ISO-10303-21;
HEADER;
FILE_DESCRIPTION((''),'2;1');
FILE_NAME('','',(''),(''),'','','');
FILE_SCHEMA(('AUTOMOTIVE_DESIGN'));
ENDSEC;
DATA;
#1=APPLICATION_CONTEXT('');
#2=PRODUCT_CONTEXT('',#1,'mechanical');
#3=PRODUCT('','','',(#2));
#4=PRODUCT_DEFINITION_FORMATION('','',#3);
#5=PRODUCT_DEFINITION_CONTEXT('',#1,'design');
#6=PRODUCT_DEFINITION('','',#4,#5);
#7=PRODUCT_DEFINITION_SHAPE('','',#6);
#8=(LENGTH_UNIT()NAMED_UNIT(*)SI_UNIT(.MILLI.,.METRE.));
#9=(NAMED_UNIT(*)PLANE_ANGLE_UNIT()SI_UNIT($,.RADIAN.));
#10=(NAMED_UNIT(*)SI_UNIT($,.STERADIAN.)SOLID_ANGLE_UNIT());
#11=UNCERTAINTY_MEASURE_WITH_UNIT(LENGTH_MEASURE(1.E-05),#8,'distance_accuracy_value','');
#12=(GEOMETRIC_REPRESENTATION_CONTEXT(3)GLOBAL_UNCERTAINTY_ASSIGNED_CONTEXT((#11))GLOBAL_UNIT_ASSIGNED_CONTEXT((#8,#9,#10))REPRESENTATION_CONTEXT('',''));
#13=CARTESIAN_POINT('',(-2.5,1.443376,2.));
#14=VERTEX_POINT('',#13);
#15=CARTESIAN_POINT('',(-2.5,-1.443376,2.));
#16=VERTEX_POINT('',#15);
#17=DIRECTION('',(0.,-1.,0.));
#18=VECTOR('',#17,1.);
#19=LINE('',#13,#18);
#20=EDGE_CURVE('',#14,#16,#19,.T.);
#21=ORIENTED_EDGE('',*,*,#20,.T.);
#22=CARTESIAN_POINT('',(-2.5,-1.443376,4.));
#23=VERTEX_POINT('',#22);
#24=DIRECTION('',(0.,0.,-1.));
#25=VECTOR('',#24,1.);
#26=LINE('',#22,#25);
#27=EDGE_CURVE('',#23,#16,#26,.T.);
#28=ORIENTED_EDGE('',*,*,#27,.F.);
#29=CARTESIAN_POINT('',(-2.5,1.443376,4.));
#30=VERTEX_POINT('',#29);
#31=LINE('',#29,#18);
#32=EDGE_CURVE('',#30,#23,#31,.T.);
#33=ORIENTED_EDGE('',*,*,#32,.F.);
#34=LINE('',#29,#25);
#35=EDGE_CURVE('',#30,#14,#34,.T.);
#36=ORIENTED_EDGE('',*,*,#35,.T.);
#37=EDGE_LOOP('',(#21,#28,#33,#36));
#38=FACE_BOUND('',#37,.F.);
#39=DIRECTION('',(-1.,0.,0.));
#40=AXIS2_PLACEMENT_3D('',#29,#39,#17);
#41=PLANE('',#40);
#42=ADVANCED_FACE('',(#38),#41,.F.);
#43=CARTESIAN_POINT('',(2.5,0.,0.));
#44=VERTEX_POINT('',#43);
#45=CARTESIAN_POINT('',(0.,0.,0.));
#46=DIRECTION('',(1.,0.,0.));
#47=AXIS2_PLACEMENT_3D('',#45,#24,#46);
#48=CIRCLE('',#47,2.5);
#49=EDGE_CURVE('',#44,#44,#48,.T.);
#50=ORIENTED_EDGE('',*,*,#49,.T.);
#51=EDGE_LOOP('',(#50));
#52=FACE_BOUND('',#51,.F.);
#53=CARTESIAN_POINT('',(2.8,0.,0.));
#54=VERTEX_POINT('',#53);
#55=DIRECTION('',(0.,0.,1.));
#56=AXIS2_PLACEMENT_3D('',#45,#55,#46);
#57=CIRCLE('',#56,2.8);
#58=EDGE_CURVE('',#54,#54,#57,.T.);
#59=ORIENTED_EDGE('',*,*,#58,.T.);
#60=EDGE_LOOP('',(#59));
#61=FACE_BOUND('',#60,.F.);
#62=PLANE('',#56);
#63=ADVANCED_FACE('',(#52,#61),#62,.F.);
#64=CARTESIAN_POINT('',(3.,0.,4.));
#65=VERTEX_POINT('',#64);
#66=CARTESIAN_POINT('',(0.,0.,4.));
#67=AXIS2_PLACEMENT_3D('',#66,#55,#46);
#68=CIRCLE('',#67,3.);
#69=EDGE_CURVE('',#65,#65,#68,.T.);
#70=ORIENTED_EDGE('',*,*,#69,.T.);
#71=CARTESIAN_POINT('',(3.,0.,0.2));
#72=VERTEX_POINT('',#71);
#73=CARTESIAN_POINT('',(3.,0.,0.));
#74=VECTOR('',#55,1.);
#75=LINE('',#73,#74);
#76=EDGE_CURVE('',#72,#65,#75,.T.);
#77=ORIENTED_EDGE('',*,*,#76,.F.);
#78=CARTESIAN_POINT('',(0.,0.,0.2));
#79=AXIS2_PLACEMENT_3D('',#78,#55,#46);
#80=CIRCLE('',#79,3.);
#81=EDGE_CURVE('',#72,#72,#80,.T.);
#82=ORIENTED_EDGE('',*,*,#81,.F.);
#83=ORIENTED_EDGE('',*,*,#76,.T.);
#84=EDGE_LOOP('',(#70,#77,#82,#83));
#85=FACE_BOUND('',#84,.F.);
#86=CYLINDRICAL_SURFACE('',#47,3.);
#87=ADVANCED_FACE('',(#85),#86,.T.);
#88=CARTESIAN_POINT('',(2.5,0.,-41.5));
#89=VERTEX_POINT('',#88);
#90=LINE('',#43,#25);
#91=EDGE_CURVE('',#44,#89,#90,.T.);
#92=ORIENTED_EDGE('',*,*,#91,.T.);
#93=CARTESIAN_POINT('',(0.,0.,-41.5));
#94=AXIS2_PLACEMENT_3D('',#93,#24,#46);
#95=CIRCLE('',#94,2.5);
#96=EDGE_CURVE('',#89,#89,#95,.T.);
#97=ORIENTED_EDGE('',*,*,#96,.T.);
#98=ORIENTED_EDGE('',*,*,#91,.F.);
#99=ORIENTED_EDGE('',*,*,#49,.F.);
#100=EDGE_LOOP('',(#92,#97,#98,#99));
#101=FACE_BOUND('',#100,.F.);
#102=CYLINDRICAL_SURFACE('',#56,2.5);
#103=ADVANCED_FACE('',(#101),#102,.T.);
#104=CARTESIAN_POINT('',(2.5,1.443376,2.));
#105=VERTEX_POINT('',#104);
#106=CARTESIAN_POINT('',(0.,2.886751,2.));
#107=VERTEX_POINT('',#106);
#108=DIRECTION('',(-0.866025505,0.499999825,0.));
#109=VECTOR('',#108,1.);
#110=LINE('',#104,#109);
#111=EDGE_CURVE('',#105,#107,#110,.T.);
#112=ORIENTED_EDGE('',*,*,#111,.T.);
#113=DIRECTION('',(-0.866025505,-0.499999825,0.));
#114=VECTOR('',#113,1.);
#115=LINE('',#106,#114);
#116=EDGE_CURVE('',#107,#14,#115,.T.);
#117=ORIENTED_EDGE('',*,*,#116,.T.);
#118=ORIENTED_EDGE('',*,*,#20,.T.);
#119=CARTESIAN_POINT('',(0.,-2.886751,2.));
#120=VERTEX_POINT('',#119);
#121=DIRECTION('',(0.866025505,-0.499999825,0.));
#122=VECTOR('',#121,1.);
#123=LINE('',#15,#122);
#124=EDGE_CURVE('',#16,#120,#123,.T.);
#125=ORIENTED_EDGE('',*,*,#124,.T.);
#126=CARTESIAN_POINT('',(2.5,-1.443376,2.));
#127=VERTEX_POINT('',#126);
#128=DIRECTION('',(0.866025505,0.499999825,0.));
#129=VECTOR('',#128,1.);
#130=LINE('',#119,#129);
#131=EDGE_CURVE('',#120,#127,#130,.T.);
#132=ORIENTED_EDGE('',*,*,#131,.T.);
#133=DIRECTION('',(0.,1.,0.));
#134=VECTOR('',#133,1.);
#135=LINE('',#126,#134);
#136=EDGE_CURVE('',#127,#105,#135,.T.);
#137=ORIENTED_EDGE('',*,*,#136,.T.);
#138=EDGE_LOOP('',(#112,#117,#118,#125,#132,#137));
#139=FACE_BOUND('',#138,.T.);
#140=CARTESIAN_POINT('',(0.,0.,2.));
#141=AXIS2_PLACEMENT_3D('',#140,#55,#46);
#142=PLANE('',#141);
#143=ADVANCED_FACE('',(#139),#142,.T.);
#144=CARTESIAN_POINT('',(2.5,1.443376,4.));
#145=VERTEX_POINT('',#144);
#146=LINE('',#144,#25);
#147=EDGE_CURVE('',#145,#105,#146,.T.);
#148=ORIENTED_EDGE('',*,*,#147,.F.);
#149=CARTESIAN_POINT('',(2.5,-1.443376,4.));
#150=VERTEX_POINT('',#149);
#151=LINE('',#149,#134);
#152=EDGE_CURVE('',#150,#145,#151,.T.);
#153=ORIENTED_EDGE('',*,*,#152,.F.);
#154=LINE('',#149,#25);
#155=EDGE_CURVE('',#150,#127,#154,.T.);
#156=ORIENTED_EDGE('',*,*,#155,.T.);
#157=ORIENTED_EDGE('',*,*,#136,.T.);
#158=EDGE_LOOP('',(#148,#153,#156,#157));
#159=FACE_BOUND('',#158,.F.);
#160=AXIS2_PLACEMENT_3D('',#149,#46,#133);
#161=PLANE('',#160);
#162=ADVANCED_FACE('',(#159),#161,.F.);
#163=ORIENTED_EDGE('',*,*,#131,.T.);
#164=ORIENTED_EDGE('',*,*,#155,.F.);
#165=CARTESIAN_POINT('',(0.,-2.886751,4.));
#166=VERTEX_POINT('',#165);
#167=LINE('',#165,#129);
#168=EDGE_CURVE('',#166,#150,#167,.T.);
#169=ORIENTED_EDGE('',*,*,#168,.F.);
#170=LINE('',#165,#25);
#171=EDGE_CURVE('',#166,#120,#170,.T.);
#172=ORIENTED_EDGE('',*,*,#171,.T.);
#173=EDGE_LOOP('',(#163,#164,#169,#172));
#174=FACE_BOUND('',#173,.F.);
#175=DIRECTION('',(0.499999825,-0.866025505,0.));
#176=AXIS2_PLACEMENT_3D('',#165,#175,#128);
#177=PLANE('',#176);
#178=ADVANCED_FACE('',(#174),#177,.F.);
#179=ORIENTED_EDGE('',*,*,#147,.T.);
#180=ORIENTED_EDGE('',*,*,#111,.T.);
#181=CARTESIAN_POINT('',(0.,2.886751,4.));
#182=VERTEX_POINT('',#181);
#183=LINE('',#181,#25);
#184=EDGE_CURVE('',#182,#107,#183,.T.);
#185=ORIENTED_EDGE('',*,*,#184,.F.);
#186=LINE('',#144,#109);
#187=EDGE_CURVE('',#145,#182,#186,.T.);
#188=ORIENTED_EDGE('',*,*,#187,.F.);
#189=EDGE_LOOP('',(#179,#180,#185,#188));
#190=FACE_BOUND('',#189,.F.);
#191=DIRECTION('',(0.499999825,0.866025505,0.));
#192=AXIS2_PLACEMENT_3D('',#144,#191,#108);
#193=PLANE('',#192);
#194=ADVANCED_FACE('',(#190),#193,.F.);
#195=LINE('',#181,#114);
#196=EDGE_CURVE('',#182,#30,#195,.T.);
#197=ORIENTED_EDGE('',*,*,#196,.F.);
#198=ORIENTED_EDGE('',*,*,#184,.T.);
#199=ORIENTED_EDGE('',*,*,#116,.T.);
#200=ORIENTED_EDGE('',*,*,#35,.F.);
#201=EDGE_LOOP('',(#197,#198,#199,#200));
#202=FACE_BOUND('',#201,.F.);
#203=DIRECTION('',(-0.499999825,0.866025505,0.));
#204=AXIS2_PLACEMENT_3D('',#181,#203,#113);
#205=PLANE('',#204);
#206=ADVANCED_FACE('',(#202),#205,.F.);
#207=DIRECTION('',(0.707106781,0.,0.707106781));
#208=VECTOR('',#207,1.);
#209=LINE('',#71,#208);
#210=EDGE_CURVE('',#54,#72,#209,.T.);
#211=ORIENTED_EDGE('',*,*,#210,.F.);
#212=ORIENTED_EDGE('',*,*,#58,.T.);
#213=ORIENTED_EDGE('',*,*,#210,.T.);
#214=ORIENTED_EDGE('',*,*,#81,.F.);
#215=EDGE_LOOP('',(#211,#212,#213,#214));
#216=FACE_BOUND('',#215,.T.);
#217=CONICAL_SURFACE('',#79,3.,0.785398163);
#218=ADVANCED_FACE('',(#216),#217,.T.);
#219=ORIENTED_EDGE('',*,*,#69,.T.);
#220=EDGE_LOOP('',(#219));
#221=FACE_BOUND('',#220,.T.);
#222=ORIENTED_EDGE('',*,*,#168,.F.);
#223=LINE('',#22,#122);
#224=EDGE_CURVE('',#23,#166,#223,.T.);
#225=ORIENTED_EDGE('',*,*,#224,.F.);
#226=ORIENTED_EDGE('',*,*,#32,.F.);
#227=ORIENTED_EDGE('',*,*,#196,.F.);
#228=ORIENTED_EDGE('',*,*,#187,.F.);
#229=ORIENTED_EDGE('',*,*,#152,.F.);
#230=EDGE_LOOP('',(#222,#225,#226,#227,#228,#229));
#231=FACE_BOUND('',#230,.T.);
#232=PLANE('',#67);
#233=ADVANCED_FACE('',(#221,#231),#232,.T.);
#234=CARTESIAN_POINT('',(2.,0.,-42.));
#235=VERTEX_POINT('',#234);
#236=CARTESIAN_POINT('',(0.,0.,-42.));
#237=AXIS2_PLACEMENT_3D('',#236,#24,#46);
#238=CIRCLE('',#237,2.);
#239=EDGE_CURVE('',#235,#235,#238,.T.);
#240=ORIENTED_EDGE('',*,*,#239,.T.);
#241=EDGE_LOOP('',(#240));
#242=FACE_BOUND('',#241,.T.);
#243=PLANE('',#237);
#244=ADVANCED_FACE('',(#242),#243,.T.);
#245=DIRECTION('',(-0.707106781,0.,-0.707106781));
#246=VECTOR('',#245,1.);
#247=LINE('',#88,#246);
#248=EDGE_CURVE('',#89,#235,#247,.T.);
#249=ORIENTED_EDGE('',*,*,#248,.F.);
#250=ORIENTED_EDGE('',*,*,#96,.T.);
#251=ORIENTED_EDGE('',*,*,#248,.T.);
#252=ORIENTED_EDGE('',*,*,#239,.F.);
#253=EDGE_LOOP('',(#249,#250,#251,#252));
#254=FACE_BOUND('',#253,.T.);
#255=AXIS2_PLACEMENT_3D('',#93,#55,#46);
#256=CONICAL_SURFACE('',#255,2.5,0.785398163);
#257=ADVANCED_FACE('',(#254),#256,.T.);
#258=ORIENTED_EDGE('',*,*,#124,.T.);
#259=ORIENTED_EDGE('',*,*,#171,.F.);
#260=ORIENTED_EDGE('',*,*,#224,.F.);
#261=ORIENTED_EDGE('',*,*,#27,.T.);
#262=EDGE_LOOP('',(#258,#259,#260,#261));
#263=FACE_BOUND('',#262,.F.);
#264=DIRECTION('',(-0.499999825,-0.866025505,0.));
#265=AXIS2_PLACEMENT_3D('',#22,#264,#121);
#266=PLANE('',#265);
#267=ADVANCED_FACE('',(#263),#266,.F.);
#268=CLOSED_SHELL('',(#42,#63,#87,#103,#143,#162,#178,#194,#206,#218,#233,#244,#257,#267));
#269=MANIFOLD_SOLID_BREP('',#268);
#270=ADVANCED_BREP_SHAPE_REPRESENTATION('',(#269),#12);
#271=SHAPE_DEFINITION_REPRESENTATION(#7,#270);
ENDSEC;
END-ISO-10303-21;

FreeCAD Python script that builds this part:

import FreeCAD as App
import Part
import Sketcher
Q = App.Units.Quantity


def edges_at(feature, points):
    """Names of the edges that pass closest to the given points."""
    edges = feature.Shape.Edges
    near = lambda p: min(range(len(edges)), key=lambda i: edges[i].distToShape(Part.Vertex(*p))[0])
    return sorted({f"Edge{near(p) + 1}" for p in points})

doc = App.newDocument("Part")
body = doc.addObject("PartDesign::Body", "Body")

# Sketch on XY plane
sketch1 = doc.addObject("Sketcher::SketchObject", "Sketch")
body.addObject(sketch1)
sketch1.AttachmentSupport = (doc.XY_Plane, [""])
sketch1.MapMode = "FlatFace"
sketch1.addGeometry(Part.Circle(App.Vector(0, 0, 0), App.Vector(0, 0, 1), 3), False)
sketch1.addConstraint([
    Sketcher.Constraint("Coincident", 0, 3, -1, 1),
    Sketcher.Constraint("Diameter", 0, Q("6 mm")),
])
pad1 = doc.addObject("PartDesign::Pad", "Pad")
body.addObject(pad1)
pad1.Profile = sketch1
pad1.Length = 4

# Sketch on XY plane
sketch2 = doc.addObject("Sketcher::SketchObject", "Sketch001")
body.addObject(sketch2)
sketch2.AttachmentSupport = (doc.XY_Plane, [""])
sketch2.MapMode = "FlatFace"
sketch2.AttachmentOffset = App.Placement(App.Vector(0, 0, 4), App.Rotation())
sketch2.addGeometry([
    Part.LineSegment(App.Vector(2.5, -1.4, 0), App.Vector(2.5, 1.4, 0)),  # 0
    Part.LineSegment(App.Vector(2.5, 1.4, 0), App.Vector(0, 2.9, 0)),  # 1
    Part.LineSegment(App.Vector(0, 2.9, 0), App.Vector(-2.5, 1.4, 0)),  # 2
    Part.LineSegment(App.Vector(-2.5, 1.4, 0), App.Vector(-2.5, -1.4, 0)),  # 3
    Part.LineSegment(App.Vector(-2.5, -1.4, 0), App.Vector(0, -2.9, 0)),  # 4
    Part.LineSegment(App.Vector(0, -2.9, 0), App.Vector(2.5, -1.4, 0)),  # 5
], False)
sketch2.addConstraint([
    Sketcher.Constraint("Coincident", 0, 2, 1, 1),
    Sketcher.Constraint("Coincident", 1, 2, 2, 1),
    Sketcher.Constraint("Coincident", 2, 2, 3, 1),
    Sketcher.Constraint("Coincident", 3, 2, 4, 1),
    Sketcher.Constraint("Coincident", 4, 2, 5, 1),
    Sketcher.Constraint("Coincident", 5, 2, 0, 1),
    Sketcher.Constraint("Vertical", 0),
    Sketcher.Constraint("Vertical", 3),
    Sketcher.Constraint("Symmetric", 0, 2, 3, 2, -1, 1),
    Sketcher.Constraint("Symmetric", 1, 2, 4, 2, -1, 1),
    Sketcher.Constraint("PointOnObject", 1, 2, -2),
    Sketcher.Constraint("Parallel", 2, 5),
    Sketcher.Constraint("Horizontal", 0, 2, 2, 2),
    Sketcher.Constraint("Angle", 1, Q("150.000012 deg")),
    Sketcher.Constraint("DistanceX", 2, 2, 0, 2, Q("5 mm")),
    Sketcher.Constraint("DistanceY", 0, 1, 0, 2, Q("2.886752 mm")),
])
pocket1 = doc.addObject("PartDesign::Pocket", "Pocket")
body.addObject(pocket1)
pocket1.Profile = sketch2
pocket1.Length = 2

# Sketch on XY plane
sketch3 = doc.addObject("Sketcher::SketchObject", "Sketch002")
body.addObject(sketch3)
sketch3.AttachmentSupport = (doc.XY_Plane, [""])
sketch3.MapMode = "FlatFace"
sketch3.addGeometry(Part.Circle(App.Vector(0, 0, 0), App.Vector(0, 0, 1), 2.5), False)
sketch3.addConstraint([
    Sketcher.Constraint("Coincident", 0, 3, -1, 1),
    Sketcher.Constraint("Diameter", 0, Q("5 mm")),
])
pad2 = doc.addObject("PartDesign::Pad", "Pad001")
body.addObject(pad2)
pad2.Profile = sketch3
pad2.Length = 42
pad2.Reversed = True
doc.recompute()

chamfer = doc.addObject("PartDesign::Chamfer", "Chamfer")
body.addObject(chamfer)
chamfer.Base = (pad2, edges_at(pad2, [(-2.5, 0, -42)]))
chamfer.Size = 0.5
doc.recompute()

chamfer2 = doc.addObject("PartDesign::Chamfer", "Chamfer001")
body.addObject(chamfer2)
chamfer2.Base = (chamfer, edges_at(chamfer, [(-3, 0, 0)]))
chamfer2.Size = 0.2

doc.recompute()
